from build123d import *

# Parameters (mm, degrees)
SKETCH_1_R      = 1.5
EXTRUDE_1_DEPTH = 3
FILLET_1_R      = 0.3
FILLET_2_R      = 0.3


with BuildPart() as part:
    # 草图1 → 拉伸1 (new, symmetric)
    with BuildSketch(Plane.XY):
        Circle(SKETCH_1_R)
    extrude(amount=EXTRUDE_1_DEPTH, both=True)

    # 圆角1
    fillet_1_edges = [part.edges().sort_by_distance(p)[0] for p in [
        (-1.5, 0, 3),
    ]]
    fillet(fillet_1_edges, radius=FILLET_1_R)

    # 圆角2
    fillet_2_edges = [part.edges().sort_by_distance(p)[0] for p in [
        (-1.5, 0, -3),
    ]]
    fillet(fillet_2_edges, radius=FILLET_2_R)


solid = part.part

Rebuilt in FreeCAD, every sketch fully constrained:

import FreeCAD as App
import Part
import Sketcher

V = App.Vector
Q = App.Units.Quantity


def edges_at(feature, points):
    """Names of the edges that pass closest to the given points."""
    edges = feature.Shape.Edges
    near = lambda p: min(range(len(edges)), key=lambda i: edges[i].distToShape(Part.Vertex(*p))[0])
    return sorted({f"Edge{near(p) + 1}" for p in points})

doc = App.newDocument("Part")
body = doc.addObject("PartDesign::Body", "Body")

# Sketch on XY plane
sketch1 = doc.addObject("Sketcher::SketchObject", "Sketch")
body.addObject(sketch1)
sketch1.AttachmentSupport = (doc.XY_Plane, [""])
sketch1.MapMode = "FlatFace"
sketch1.addGeometry(Part.Circle(V(0, 0, 0), V(0, 0, 1), 1.5), False)
sketch1.addConstraint([
    Sketcher.Constraint("Coincident", 0, 3, -1, 1),
    Sketcher.Constraint("Diameter", 0, Q("3 mm")),
])
pad1 = doc.addObject("PartDesign::Pad", "Pad")
body.addObject(pad1)
pad1.Profile = sketch1
pad1.Length = 6
pad1.Midplane = True
doc.recompute()

fillet = doc.addObject("PartDesign::Fillet", "Fillet")
body.addObject(fillet)
fillet.Base = (pad1, edges_at(pad1, [(-1.5, 0, 3)]))
fillet.Radius = 0.3
doc.recompute()

fillet2 = doc.addObject("PartDesign::Fillet", "Fillet001")
body.addObject(fillet2)
fillet2.Base = (fillet, edges_at(fillet, [(-1.5, 0, -3)]))
fillet2.Radius = 0.3

doc.recompute()
